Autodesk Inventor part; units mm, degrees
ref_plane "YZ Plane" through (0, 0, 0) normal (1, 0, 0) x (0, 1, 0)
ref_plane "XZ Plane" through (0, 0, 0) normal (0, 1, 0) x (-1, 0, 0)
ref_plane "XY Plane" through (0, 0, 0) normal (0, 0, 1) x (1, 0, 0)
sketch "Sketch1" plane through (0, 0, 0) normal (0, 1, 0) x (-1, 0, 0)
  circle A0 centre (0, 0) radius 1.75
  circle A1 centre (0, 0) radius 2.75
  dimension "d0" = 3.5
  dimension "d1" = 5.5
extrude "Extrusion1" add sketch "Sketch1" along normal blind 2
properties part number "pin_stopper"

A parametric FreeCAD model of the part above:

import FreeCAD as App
import Part
import Sketcher

V = App.Vector
Q = App.Units.Quantity

doc = App.newDocument("Part")
body = doc.addObject("PartDesign::Body", "Body")

# Sketch on XZ plane
sketch1 = doc.addObject("Sketcher::SketchObject", "Sketch")
body.addObject(sketch1)
sketch1.AttachmentSupport = (doc.XZ_Plane, [""])
sketch1.MapMode = "FlatFace"
sketch1.addGeometry(Part.Circle(V(0, 0, 0), V(0, 0, 1), 2.8), False)
sketch1.addGeometry(Part.Circle(V(0, 0, 0), V(0, 0, 1), 1.8), False)
sketch1.addConstraint(Sketcher.Constraint("Coincident", 0, 3, -1, 1))
sketch1.addConstraint(Sketcher.Constraint("Coincident", 1, 3, -1, 1))
sketch1.addConstraint(Sketcher.Constraint("Diameter", 0, Q("5.5 mm")))
sketch1.addConstraint(Sketcher.Constraint("Diameter", 1, Q("3.5 mm")))
pad1 = doc.addObject("PartDesign::Pad", "Pad")
body.addObject(pad1)
pad1.Profile = sketch1
pad1.Length = 2
pad1.Reversed = True

doc.recompute()
